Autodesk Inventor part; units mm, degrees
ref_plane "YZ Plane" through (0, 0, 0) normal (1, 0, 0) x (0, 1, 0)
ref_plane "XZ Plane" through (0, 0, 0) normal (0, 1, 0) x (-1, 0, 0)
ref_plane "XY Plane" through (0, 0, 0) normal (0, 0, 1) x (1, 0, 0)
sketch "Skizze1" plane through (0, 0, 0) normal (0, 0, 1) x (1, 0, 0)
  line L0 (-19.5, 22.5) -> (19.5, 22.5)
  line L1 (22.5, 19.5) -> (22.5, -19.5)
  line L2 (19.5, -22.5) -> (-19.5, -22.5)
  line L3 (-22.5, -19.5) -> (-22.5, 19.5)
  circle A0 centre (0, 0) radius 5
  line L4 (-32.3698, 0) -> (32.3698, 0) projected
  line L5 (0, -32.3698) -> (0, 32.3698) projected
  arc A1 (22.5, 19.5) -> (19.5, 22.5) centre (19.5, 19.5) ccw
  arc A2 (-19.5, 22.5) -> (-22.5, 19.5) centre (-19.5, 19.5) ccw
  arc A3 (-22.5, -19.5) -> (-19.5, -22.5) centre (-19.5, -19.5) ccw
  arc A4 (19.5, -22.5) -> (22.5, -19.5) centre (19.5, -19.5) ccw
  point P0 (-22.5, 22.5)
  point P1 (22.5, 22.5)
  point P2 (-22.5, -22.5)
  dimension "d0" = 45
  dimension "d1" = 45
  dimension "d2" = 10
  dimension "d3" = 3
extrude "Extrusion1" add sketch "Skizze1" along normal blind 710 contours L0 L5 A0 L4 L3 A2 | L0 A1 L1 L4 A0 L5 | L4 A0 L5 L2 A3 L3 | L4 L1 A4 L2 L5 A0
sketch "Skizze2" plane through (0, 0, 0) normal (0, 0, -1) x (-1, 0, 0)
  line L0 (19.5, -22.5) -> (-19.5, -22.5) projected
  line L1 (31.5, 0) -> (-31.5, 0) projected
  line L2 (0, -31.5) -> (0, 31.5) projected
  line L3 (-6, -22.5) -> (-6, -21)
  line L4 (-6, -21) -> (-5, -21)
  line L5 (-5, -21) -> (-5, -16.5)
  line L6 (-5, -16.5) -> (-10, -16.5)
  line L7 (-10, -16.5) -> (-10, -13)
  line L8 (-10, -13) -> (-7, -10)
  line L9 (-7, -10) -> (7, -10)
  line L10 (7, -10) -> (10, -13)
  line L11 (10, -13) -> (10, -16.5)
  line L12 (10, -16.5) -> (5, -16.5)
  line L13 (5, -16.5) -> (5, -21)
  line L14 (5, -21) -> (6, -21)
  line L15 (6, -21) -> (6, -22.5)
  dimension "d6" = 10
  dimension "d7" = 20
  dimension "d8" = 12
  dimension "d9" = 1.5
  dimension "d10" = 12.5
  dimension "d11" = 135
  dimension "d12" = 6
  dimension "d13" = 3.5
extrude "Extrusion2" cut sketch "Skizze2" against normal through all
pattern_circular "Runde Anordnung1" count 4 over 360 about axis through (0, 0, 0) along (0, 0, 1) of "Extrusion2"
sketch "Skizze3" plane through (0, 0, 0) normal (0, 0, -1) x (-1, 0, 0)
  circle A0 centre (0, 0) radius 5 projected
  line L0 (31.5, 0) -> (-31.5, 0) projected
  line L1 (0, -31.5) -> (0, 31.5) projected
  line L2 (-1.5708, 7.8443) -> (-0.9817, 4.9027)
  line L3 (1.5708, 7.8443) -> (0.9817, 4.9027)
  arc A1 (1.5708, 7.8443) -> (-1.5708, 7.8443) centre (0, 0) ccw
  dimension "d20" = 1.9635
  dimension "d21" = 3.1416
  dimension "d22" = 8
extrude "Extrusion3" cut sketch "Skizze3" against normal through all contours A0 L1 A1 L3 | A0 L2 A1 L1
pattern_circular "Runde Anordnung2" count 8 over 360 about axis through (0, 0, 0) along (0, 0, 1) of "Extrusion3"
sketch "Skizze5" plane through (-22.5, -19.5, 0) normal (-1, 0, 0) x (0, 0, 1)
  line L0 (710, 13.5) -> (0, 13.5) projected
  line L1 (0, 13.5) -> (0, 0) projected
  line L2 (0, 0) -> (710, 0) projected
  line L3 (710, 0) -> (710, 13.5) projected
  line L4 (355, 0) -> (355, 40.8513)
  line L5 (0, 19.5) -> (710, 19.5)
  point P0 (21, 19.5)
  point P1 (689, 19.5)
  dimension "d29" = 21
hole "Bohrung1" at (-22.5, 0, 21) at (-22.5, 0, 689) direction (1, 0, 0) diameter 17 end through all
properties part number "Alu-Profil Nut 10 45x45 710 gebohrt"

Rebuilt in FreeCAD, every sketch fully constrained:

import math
import FreeCAD as App
import Part
import Sketcher
from FreeCAD import Vector

doc = App.newDocument("Part")
body = doc.addObject("PartDesign::Body", "Body")

# Sketch on XY plane
sketch1 = body.newObject("Sketcher::SketchObject", "Sketch")
sketch1.AttachmentSupport = (doc.getObject("XY_Plane"), [""])
sketch1.MapMode = "FlatFace"
sketch1.addGeometry(Part.ArcOfCircle(Part.Circle(Vector(-19.5, 19.5, 0), Vector(0, 0, 1), 3), math.radians(90), math.radians(180)), False)
sketch1.addGeometry(Part.LineSegment(Vector(-22.5, 19.5, 0), Vector(-22.5, -19.5, 0)), False)
sketch1.addGeometry(Part.ArcOfCircle(Part.Circle(Vector(-19.5, -19.5, 0), Vector(0, 0, 1), 3), math.radians(180), math.radians(270)), False)
sketch1.addGeometry(Part.LineSegment(Vector(-19.5, -22.5, 0), Vector(19.5, -22.5, 0)), False)
sketch1.addGeometry(Part.ArcOfCircle(Part.Circle(Vector(19.5, -19.5, 0), Vector(0, 0, 1), 3), math.radians(-90), math.radians(0)), False)
sketch1.addGeometry(Part.LineSegment(Vector(22.5, -19.5, 0), Vector(22.5, 19.5, 0)), False)
sketch1.addGeometry(Part.ArcOfCircle(Part.Circle(Vector(19.5, 19.5, 0), Vector(0, 0, 1), 3), math.radians(0), math.radians(90)), False)
sketch1.addGeometry(Part.LineSegment(Vector(19.5, 22.5, 0), Vector(-19.5, 22.5, 0)), False)
sketch1.addGeometry(Part.Circle(Vector(0, 0, 0), Vector(0, 0, 1), 5), False)
sketch1.addConstraint(Sketcher.Constraint("Tangent", 0, 2, 1, 1))
sketch1.addConstraint(Sketcher.Constraint("Tangent", 1, 2, 2, 1))
sketch1.addConstraint(Sketcher.Constraint("Tangent", 2, 2, 3, 1))
sketch1.addConstraint(Sketcher.Constraint("Tangent", 3, 2, 4, 1))
sketch1.addConstraint(Sketcher.Constraint("Tangent", 4, 2, 5, 1))
sketch1.addConstraint(Sketcher.Constraint("Tangent", 5, 2, 6, 1))
sketch1.addConstraint(Sketcher.Constraint("Tangent", 6, 2, 7, 1))
sketch1.addConstraint(Sketcher.Constraint("Tangent", 7, 2, 0, 1))
sketch1.addConstraint(Sketcher.Constraint("Vertical", 1))
sketch1.addConstraint(Sketcher.Constraint("Horizontal", 3))
sketch1.addConstraint(Sketcher.Constraint("Vertical", 5))
sketch1.addConstraint(Sketcher.Constraint("Horizontal", 7))
sketch1.addConstraint(Sketcher.Constraint("Coincident", 8, 3, -1, 1))
sketch1.addConstraint(Sketcher.Constraint("Equal", 0, 2))
sketch1.addConstraint(Sketcher.Constraint("Equal", 2, 4))
sketch1.addConstraint(Sketcher.Constraint("Equal", 4, 6))
sketch1.addConstraint(Sketcher.Constraint("Symmetric", 0, 3, 4, 3, -1, 1))
sketch1.addConstraint(Sketcher.Constraint("Equal", 7, 1))
sketch1.addConstraint(Sketcher.Constraint("Diameter", 8, 10.0))
sketch1.addConstraint(Sketcher.Constraint("Radius", 0, 3.0))
sketch1.addConstraint(Sketcher.Constraint("DistanceX", 3, 1, 3, 2, 39.0))
pad1 = body.newObject("PartDesign::Pad", "Pad")
pad1.Profile = sketch1
pad1.Length = 710

# Sketch on XY plane
sketch2 = body.newObject("Sketcher::SketchObject", "Sketch001")
sketch2.AttachmentSupport = (doc.getObject("XY_Plane"), [""])
sketch2.MapMode = "FlatFace"
sketch2.addGeometry(Part.LineSegment(Vector(-6, -22.5, 0), Vector(-6, -21, 0)), False)
sketch2.addGeometry(Part.LineSegment(Vector(-6, -21, 0), Vector(-5, -21, 0)), False)
sketch2.addGeometry(Part.LineSegment(Vector(-5, -21, 0), Vector(-5, -16.5, 0)), False)
sketch2.addGeometry(Part.LineSegment(Vector(-5, -16.5, 0), Vector(-10, -16.5, 0)), False)
sketch2.addGeometry(Part.LineSegment(Vector(-10, -16.5, 0), Vector(-10, -13, 0)), False)
sketch2.addGeometry(Part.LineSegment(Vector(-10, -13, 0), Vector(-7, -10, 0)), False)
sketch2.addGeometry(Part.LineSegment(Vector(-7, -10, 0), Vector(7, -10, 0)), False)
sketch2.addGeometry(Part.LineSegment(Vector(7, -10, 0), Vector(10, -13, 0)), False)
sketch2.addGeometry(Part.LineSegment(Vector(10, -13, 0), Vector(10, -16.5, 0)), False)
sketch2.addGeometry(Part.LineSegment(Vector(10, -16.5, 0), Vector(5, -16.5, 0)), False)
sketch2.addGeometry(Part.LineSegment(Vector(5, -16.5, 0), Vector(5, -21, 0)), False)
sketch2.addGeometry(Part.LineSegment(Vector(5, -21, 0), Vector(6, -21, 0)), False)
sketch2.addGeometry(Part.LineSegment(Vector(6, -21, 0), Vector(6, -22.5, 0)), False)
sketch2.addGeometry(Part.LineSegment(Vector(6, -22.5, 0), Vector(-6, -22.5, 0)), False)
sketch2.addConstraint(Sketcher.Constraint("Coincident", 0, 2, 1, 1))
sketch2.addConstraint(Sketcher.Constraint("Coincident", 1, 2, 2, 1))
sketch2.addConstraint(Sketcher.Constraint("Coincident", 2, 2, 3, 1))
sketch2.addConstraint(Sketcher.Constraint("Coincident", 3, 2, 4, 1))
sketch2.addConstraint(Sketcher.Constraint("Coincident", 4, 2, 5, 1))
sketch2.addConstraint(Sketcher.Constraint("Coincident", 5, 2, 6, 1))
sketch2.addConstraint(Sketcher.Constraint("Coincident", 6, 2, 7, 1))
sketch2.addConstraint(Sketcher.Constraint("Coincident", 7, 2, 8, 1))
sketch2.addConstraint(Sketcher.Constraint("Coincident", 8, 2, 9, 1))
sketch2.addConstraint(Sketcher.Constraint("Coincident", 9, 2, 10, 1))
sketch2.addConstraint(Sketcher.Constraint("Coincident", 10, 2, 11, 1))
sketch2.addConstraint(Sketcher.Constraint("Coincident", 11, 2, 12, 1))
sketch2.addConstraint(Sketcher.Constraint("Coincident", 12, 2, 13, 1))
sketch2.addConstraint(Sketcher.Constraint("Coincident", 13, 2, 0, 1))
sketch2.addConstraint(Sketcher.Constraint("Vertical", 0))
sketch2.addConstraint(Sketcher.Constraint("Horizontal", 1))
sketch2.addConstraint(Sketcher.Constraint("Vertical", 2))
sketch2.addConstraint(Sketcher.Constraint("Horizontal", 3))
sketch2.addConstraint(Sketcher.Constraint("Vertical", 4))
sketch2.addConstraint(Sketcher.Constraint("Horizontal", 6))
sketch2.addConstraint(Sketcher.Constraint("Vertical", 8))
sketch2.addConstraint(Sketcher.Constraint("Horizontal", 9))
sketch2.addConstraint(Sketcher.Constraint("Vertical", 10))
sketch2.addConstraint(Sketcher.Constraint("Horizontal", 11))
sketch2.addConstraint(Sketcher.Constraint("Vertical", 12))
sketch2.addConstraint(Sketcher.Constraint("Horizontal", 13))
sketch2.addConstraint(Sketcher.Constraint("Symmetric", 4, 2, 7, 2, -2))
sketch2.addConstraint(Sketcher.Constraint("Symmetric", 2, 2, 9, 2, -2))
sketch2.addConstraint(Sketcher.Constraint("Symmetric", 0, 2, 11, 2, -2))
sketch2.addConstraint(Sketcher.Constraint("Perpendicular", 5, 7))
sketch2.addConstraint(Sketcher.Constraint("Equal", 5, 7))
sketch2.addConstraint(Sketcher.Constraint("DistanceX", 13, 2, 13, 1, 12.0))
sketch2.addConstraint(Sketcher.Constraint("DistanceY", 0, 1, 0, 2, 1.5))
sketch2.addConstraint(Sketcher.Constraint("DistanceY", 4, 1, 4, 2, 3.5))
sketch2.addConstraint(Sketcher.Constraint("DistanceX", 3, 2, -1, 1, 10.0))
sketch2.addConstraint(Sketcher.Constraint("DistanceY", 5, 2, -1, 1, 10.0))
sketch2.addConstraint(Sketcher.Constraint("DistanceX", 2, 2, 6, 2, 12.0))
sketch2.addConstraint(Sketcher.Constraint("DistanceX", 2, 2, 9, 2, 10.0))
sketch2.addConstraint(Sketcher.Constraint("DistanceY", 12, 2, 9, 2, 6.0))
pocket1 = body.newObject("PartDesign::Pocket", "Pocket")
pocket1.Profile = sketch2
pocket1.Type = "ThroughAll"
pocket1.Reversed = True
doc.recompute()

polarpattern = body.newObject("PartDesign::PolarPattern", "PolarPattern")
polarpattern.Originals = [pocket1]
polarpattern.Axis = (doc.getObject("Z_Axis"), [""])
polarpattern.Angle = 360
polarpattern.Occurrences = 4
body.Tip = polarpattern

# Sketch on XY plane
sketch3 = body.newObject("Sketcher::SketchObject", "Sketch002")
sketch3.AttachmentSupport = (doc.getObject("XY_Plane"), [""])
sketch3.MapMode = "FlatFace"
sketch3.addGeometry(Part.LineSegment(Vector(-1, 4.9, 0), Vector(-1.6, 7.8, 0)), False)
sketch3.addGeometry(Part.ArcOfCircle(Part.Circle(Vector(0, 0, 0), Vector(0, 0, 1), 8), math.radians(79), math.radians(101)), False)
sketch3.addGeometry(Part.LineSegment(Vector(1.6, 7.8, 0), Vector(1, 4.9, 0)), False)
sketch3.addGeometry(Part.ArcOfCircle(Part.Circle(Vector(0, 0, 0), Vector(0, 0, 1), 5), math.radians(79), math.radians(101)), False)
sketch3.addConstraint(Sketcher.Constraint("Coincident", 0, 2, 1, 2))
sketch3.addConstraint(Sketcher.Constraint("Coincident", 1, 1, 2, 1))
sketch3.addConstraint(Sketcher.Constraint("Coincident", 2, 2, 3, 1))
sketch3.addConstraint(Sketcher.Constraint("Coincident", 3, 2, 0, 1))
sketch3.addConstraint(Sketcher.Constraint("Coincident", 1, 3, -1, 1))
sketch3.addConstraint(Sketcher.Constraint("Coincident", 3, 3, -1, 1))
sketch3.addConstraint(Sketcher.Constraint("Horizontal", 0, 2, 1, 1))
sketch3.addConstraint(Sketcher.Constraint("Horizontal", 2, 2, 3, 2))
sketch3.addConstraint(Sketcher.Constraint("Radius", 1, 8.0))
sketch3.addConstraint(Sketcher.Constraint("Radius", 3, 5.0))
sketch3.addConstraint(Sketcher.Constraint("DistanceX", 0, 2, 1, 1, 3.1416))
sketch3.addConstraint(Sketcher.Constraint("DistanceX", 3, 2, 2, 2, 1.9634))
pocket2 = body.newObject("PartDesign::Pocket", "Pocket001")
pocket2.Profile = sketch3
pocket2.Type = "ThroughAll"
pocket2.Reversed = True
doc.recompute()

polarpattern2 = body.newObject("PartDesign::PolarPattern", "PolarPattern001")
polarpattern2.Originals = [pocket2]
polarpattern2.Axis = (doc.getObject("Z_Axis"), [""])
polarpattern2.Angle = 360
polarpattern2.Occurrences = 8
body.Tip = polarpattern2

# Sketch on YZ plane
sketch4 = body.newObject("Sketcher::SketchObject", "Sketch003")
sketch4.AttachmentSupport = (doc.getObject("YZ_Plane"), [""])
sketch4.MapMode = "FlatFace"
sketch4.AttachmentOffset = App.Placement(Vector(0, 0, -22.5), App.Rotation())
sketch4.addGeometry(Part.Circle(Vector(0, 21, 0), Vector(0, 0, 1), 8), False)
sketch4.addGeometry(Part.Circle(Vector(0, 689, 0), Vector(0, 0, 1), 8), False)
sketch4.addConstraint(Sketcher.Constraint("Equal", 0, 1))
sketch4.addConstraint(Sketcher.Constraint("PointOnObject", 0, 3, -2))
sketch4.addConstraint(Sketcher.Constraint("PointOnObject", 1, 3, -2))
sketch4.addConstraint(Sketcher.Constraint("Diameter", 0, 17.0))
sketch4.addConstraint(Sketcher.Constraint("DistanceY", -1, 1, 0, 3, 21.0))
sketch4.addConstraint(Sketcher.Constraint("DistanceY", -1, 1, 1, 3, 689.0))
doc.recompute()
hole = body.newObject("PartDesign::Hole", "Hole")
hole.Profile = sketch4
hole.ThreadType = "None"
hole.Diameter = 17
hole.DepthType = "ThroughAll"
hole.Reversed = True

doc.recompute()
